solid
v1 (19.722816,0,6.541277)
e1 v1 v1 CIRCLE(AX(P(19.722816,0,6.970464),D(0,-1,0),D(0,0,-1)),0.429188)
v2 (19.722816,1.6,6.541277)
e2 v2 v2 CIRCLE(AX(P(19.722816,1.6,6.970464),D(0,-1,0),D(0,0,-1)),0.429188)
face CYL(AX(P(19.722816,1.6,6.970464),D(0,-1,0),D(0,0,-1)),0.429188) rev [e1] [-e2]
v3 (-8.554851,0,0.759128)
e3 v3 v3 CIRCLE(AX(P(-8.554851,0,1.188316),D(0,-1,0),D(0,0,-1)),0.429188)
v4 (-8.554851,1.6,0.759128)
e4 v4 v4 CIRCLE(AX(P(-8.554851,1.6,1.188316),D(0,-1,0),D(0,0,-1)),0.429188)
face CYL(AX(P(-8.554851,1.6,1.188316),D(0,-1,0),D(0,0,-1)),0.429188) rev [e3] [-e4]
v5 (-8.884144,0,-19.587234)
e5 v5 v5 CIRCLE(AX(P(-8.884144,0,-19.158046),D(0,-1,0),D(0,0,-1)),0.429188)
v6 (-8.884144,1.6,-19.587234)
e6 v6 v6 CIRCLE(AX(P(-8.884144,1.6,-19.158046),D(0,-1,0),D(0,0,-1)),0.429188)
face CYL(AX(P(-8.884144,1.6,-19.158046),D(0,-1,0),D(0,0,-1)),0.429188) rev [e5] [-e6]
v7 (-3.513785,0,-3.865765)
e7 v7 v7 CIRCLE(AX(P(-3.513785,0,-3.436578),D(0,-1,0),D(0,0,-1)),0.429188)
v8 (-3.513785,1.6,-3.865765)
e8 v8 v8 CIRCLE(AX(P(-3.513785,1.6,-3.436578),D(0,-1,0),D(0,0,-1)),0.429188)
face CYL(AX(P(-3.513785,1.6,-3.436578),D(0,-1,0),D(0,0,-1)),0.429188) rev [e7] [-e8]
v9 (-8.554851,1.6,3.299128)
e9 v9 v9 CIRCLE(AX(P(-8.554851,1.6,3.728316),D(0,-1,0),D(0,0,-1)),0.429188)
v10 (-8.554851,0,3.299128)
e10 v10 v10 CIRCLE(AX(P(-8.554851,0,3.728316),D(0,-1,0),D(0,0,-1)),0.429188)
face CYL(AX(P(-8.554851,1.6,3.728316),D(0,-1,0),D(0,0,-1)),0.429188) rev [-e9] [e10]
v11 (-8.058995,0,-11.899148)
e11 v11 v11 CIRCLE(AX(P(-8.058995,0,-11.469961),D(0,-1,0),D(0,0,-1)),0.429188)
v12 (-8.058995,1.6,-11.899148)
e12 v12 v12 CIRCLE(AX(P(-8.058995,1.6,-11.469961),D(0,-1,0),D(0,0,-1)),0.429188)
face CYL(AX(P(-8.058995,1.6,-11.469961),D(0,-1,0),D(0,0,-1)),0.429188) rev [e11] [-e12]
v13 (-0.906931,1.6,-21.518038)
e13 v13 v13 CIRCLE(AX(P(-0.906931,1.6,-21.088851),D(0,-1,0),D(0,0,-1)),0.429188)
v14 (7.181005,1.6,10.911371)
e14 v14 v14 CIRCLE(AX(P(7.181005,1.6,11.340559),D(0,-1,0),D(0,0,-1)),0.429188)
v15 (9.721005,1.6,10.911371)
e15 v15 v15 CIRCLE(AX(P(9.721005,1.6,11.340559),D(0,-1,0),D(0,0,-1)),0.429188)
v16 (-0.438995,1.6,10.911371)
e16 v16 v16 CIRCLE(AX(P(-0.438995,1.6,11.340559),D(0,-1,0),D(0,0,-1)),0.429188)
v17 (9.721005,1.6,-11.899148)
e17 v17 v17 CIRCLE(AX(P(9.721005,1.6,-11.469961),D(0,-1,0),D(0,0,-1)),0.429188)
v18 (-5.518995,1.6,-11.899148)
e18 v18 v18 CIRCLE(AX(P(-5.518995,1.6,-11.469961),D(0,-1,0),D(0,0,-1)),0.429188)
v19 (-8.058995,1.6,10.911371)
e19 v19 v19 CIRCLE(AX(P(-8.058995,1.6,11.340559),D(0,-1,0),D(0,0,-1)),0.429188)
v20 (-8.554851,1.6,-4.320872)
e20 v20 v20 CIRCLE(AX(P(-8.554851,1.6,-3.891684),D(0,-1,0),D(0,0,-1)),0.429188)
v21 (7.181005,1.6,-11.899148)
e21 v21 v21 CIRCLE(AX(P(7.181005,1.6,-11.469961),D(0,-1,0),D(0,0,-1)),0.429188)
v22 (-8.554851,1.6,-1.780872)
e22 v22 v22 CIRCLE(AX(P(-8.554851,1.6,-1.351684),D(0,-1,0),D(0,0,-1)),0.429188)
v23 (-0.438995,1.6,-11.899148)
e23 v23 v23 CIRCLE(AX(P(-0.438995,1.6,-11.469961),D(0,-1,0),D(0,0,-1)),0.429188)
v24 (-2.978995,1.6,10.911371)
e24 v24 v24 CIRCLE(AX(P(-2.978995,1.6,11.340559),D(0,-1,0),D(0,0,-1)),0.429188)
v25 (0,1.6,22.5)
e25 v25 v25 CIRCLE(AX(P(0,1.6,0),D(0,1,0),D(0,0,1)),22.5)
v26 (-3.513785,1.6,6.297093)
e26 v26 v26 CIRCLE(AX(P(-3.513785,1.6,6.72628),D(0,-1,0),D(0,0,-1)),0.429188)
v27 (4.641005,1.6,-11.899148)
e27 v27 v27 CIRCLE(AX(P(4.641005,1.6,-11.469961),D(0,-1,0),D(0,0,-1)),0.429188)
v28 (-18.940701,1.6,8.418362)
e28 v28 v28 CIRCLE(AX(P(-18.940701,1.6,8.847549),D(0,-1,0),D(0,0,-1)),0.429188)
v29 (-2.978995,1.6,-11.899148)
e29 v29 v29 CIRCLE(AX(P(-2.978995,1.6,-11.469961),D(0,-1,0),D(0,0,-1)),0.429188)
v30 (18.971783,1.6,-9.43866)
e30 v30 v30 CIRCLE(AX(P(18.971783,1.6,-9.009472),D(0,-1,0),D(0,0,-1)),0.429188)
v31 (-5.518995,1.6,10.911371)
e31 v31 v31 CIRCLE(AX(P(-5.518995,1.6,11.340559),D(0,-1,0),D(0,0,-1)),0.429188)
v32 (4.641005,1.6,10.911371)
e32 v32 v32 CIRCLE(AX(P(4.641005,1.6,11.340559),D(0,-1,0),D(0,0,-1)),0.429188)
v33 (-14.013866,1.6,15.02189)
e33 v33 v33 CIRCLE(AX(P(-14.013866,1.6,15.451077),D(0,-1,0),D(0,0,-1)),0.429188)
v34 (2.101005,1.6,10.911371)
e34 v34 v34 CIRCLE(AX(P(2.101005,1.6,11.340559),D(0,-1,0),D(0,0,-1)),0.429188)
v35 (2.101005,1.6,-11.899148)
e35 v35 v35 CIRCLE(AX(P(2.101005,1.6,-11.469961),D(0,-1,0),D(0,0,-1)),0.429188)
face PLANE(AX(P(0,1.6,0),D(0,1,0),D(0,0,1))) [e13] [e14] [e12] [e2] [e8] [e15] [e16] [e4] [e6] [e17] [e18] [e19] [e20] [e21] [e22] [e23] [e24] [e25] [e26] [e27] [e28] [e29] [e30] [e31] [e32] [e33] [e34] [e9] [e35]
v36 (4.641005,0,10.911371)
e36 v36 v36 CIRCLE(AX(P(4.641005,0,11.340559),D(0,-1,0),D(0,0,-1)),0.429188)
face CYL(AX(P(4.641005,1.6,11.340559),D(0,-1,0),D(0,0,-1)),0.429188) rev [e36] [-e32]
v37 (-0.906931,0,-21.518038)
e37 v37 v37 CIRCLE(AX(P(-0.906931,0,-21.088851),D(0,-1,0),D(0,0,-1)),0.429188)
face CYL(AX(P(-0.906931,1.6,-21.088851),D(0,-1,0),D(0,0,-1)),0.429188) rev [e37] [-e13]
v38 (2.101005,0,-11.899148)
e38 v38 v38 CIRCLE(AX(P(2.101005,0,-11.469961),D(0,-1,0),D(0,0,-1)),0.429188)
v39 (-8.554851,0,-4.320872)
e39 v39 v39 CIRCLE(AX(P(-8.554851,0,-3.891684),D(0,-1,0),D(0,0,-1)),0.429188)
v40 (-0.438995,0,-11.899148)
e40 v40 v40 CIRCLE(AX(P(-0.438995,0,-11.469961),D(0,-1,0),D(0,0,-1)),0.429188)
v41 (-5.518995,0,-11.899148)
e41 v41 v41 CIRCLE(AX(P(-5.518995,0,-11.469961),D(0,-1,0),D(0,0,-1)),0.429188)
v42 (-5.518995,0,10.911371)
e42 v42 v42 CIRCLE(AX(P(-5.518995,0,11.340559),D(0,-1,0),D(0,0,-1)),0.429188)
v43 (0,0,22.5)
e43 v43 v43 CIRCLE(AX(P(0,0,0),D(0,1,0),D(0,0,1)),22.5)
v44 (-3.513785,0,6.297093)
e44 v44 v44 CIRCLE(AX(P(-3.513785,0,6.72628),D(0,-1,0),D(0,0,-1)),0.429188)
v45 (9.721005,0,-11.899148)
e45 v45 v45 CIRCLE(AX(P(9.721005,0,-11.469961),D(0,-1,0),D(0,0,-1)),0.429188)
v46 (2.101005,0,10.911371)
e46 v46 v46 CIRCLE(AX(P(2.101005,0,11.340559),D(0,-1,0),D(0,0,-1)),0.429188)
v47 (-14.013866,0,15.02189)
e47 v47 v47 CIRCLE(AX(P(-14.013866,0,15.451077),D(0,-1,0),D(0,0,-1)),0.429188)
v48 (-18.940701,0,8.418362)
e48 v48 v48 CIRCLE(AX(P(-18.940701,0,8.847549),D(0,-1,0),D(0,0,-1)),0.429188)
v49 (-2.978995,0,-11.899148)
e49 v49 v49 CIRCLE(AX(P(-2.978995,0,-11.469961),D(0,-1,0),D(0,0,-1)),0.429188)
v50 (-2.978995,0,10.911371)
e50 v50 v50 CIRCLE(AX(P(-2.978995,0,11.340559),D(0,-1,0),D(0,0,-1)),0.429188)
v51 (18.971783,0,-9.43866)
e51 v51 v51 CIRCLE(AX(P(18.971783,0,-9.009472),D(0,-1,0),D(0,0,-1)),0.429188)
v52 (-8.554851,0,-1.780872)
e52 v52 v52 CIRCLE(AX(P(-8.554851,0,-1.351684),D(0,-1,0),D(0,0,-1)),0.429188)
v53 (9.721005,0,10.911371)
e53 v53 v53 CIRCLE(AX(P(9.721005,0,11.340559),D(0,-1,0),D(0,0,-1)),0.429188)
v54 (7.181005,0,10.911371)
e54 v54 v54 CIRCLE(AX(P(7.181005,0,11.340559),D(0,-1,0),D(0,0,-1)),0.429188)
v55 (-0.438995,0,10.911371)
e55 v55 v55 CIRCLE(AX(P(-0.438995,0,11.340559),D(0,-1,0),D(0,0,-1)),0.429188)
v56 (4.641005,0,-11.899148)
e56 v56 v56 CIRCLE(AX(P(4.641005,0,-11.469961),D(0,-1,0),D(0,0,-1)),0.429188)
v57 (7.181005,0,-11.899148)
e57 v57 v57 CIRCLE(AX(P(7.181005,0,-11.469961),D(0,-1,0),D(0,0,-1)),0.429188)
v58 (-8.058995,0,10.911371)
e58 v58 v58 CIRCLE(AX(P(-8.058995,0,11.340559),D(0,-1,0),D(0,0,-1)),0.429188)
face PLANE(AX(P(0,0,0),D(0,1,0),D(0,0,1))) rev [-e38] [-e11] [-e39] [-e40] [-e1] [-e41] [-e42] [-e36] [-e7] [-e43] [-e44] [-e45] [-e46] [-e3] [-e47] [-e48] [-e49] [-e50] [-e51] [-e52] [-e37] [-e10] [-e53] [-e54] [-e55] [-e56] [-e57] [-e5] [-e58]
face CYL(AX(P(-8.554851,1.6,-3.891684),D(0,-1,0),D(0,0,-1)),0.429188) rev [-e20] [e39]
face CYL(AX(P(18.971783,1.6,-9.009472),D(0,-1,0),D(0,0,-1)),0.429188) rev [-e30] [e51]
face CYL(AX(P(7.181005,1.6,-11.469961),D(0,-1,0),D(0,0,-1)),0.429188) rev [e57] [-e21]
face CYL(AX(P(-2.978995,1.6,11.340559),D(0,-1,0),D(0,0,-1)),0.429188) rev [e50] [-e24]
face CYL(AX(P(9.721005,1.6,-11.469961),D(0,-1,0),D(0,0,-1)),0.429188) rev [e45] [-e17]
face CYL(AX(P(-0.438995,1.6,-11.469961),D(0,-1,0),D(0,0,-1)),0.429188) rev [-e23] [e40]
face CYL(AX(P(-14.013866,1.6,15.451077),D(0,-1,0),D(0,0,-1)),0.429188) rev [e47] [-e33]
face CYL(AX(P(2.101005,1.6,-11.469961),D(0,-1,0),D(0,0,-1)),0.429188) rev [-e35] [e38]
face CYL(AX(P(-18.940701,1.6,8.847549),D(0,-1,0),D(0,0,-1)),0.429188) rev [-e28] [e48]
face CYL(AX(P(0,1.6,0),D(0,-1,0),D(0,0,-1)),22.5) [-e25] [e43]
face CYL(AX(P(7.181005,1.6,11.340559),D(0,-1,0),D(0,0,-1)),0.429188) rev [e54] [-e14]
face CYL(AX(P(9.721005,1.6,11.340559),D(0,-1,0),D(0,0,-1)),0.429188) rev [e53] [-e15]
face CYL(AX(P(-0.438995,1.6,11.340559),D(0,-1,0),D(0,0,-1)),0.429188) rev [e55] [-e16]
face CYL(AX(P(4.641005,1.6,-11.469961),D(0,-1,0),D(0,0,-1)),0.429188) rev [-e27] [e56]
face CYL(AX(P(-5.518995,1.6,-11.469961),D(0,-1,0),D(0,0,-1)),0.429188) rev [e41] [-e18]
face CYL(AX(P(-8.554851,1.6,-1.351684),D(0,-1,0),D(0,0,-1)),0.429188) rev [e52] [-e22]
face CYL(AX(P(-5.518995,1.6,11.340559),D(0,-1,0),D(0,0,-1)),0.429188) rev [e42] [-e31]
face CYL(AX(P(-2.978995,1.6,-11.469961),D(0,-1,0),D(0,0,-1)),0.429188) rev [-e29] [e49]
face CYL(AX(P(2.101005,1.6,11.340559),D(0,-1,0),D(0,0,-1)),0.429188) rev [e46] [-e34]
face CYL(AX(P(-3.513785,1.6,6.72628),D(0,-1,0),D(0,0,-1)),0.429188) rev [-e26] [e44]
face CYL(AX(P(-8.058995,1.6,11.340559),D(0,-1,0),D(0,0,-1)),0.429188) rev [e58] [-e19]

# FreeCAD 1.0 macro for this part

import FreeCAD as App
import Part
import Sketcher

doc = App.newDocument("Part")
body = doc.addObject("PartDesign::Body", "Body")

sketch1 = doc.addObject("Sketcher::SketchObject", "Sketch")
body.addObject(sketch1)
sketch1.AttachmentSupport = (doc.XZ_Plane, [""])
sketch1.MapMode = "FlatFace"
sketch1.addGeometry(Part.Circle(App.Vector(0, 0, 0), App.Vector(0, 0, 1), 22), False)
sketch1.addConstraint([
    Sketcher.Constraint("Coincident", 0, 3, -1, 1),
    Sketcher.Constraint("Diameter", 0, 45.0),
])
pad1 = doc.addObject("PartDesign::Pad", "Pad")
body.addObject(pad1)
pad1.Profile = sketch1
pad1.Length = 1.6
pad1.Reversed = True

sketch2 = doc.addObject("Sketcher::SketchObject", "Sketch001")
body.addObject(sketch2)
sketch2.AttachmentSupport = (doc.XZ_Plane, [""])
sketch2.MapMode = "FlatFace"
sketch2.addGeometry([
    Part.Circle(App.Vector(9.72, 11.34, 0), App.Vector(0, 0, 1), 0.43),
    Part.Circle(App.Vector(7.18, 11.34, 0), App.Vector(0, 0, 1), 0.43),
    Part.Circle(App.Vector(4.64, 11.34, 0), App.Vector(0, 0, 1), 0.43),
    Part.Circle(App.Vector(2.1, 11.34, 0), App.Vector(0, 0, 1), 0.43),
    Part.Circle(App.Vector(-0.44, 11.34, 0), App.Vector(0, 0, 1), 0.43),
    Part.Circle(App.Vector(-2.98, 11.34, 0), App.Vector(0, 0, 1), 0.43),
    Part.Circle(App.Vector(-5.52, 11.34, 0), App.Vector(0, 0, 1), 0.43),
    Part.Circle(App.Vector(-8.06, 11.34, 0), App.Vector(0, 0, 1), 0.43),
    Part.Circle(App.Vector(9.72, -11.47, 0), App.Vector(0, 0, 1), 0.43),
    Part.Circle(App.Vector(7.18, -11.47, 0), App.Vector(0, 0, 1), 0.43),
    Part.Circle(App.Vector(4.64, -11.47, 0), App.Vector(0, 0, 1), 0.43),
    Part.Circle(App.Vector(2.1, -11.47, 0), App.Vector(0, 0, 1), 0.43),
    Part.Circle(App.Vector(-0.44, -11.47, 0), App.Vector(0, 0, 1), 0.43),
    Part.Circle(App.Vector(-2.98, -11.47, 0), App.Vector(0, 0, 1), 0.43),
    Part.Circle(App.Vector(-5.52, -11.47, 0), App.Vector(0, 0, 1), 0.43),
    Part.Circle(App.Vector(-8.06, -11.47, 0), App.Vector(0, 0, 1), 0.43),
    Part.Circle(App.Vector(-8.55, 3.73, 0), App.Vector(0, 0, 1), 0.43),
    Part.Circle(App.Vector(-8.55, 1.19, 0), App.Vector(0, 0, 1), 0.43),
    Part.Circle(App.Vector(-8.55, -1.35, 0), App.Vector(0, 0, 1), 0.43),
    Part.Circle(App.Vector(-8.55, -3.89, 0), App.Vector(0, 0, 1), 0.43),
    Part.Circle(App.Vector(-3.51, 6.73, 0), App.Vector(0, 0, 1), 0.43),
    Part.Circle(App.Vector(-14.01, 15.45, 0), App.Vector(0, 0, 1), 0.43),
    Part.Circle(App.Vector(-18.94, 8.85, 0), App.Vector(0, 0, 1), 0.43),
    Part.Circle(App.Vector(-3.51, -3.44, 0), App.Vector(0, 0, 1), 0.43),
    Part.Circle(App.Vector(-8.88, -19.16, 0), App.Vector(0, 0, 1), 0.43),
    Part.Circle(App.Vector(-0.91, -21.09, 0), App.Vector(0, 0, 1), 0.43),
    Part.Circle(App.Vector(19.72, 6.97, 0), App.Vector(0, 0, 1), 0.43),
    Part.Circle(App.Vector(18.97, -9.01, 0), App.Vector(0, 0, 1), 0.43),
], False)
sketch2.addConstraint([
    Sketcher.Constraint("Equal", 0, 1),
    Sketcher.Constraint("Equal", 1, 2),
    Sketcher.Constraint("Equal", 2, 3),
    Sketcher.Constraint("Equal", 3, 4),
    Sketcher.Constraint("Equal", 4, 5),
    Sketcher.Constraint("Equal", 5, 6),
    Sketcher.Constraint("Equal", 6, 7),
    Sketcher.Constraint("Equal", 7, 8),
    Sketcher.Constraint("Equal", 8, 9),
    Sketcher.Constraint("Equal", 9, 10),
    Sketcher.Constraint("Equal", 10, 11),
    Sketcher.Constraint("Equal", 11, 12),
    Sketcher.Constraint("Equal", 12, 13),
    Sketcher.Constraint("Equal", 13, 14),
    Sketcher.Constraint("Equal", 14, 15),
    Sketcher.Constraint("Equal", 15, 16),
    Sketcher.Constraint("Equal", 16, 17),
    Sketcher.Constraint("Equal", 17, 18),
    Sketcher.Constraint("Equal", 18, 19),
    Sketcher.Constraint("Equal", 19, 20),
    Sketcher.Constraint("Equal", 20, 21),
    Sketcher.Constraint("Equal", 21, 22),
    Sketcher.Constraint("Equal", 22, 23),
    Sketcher.Constraint("Equal", 23, 24),
    Sketcher.Constraint("Equal", 24, 25),
    Sketcher.Constraint("Equal", 25, 26),
    Sketcher.Constraint("Equal", 26, 27),
    Sketcher.Constraint("Horizontal", 0, 3, 1, 3),
    Sketcher.Constraint("Horizontal", 1, 3, 2, 3),
    Sketcher.Constraint("Horizontal", 2, 3, 3, 3),
    Sketcher.Constraint("Horizontal", 3, 3, 4, 3),
    Sketcher.Constraint("Horizontal", 4, 3, 5, 3),
    Sketcher.Constraint("Horizontal", 5, 3, 6, 3),
    Sketcher.Constraint("Horizontal", 6, 3, 7, 3),
    Sketcher.Constraint("Horizontal", 8, 3, 9, 3),
    Sketcher.Constraint("Horizontal", 9, 3, 10, 3),
    Sketcher.Constraint("Horizontal", 10, 3, 11, 3),
    Sketcher.Constraint("Horizontal", 11, 3, 12, 3),
    Sketcher.Constraint("Horizontal", 12, 3, 13, 3),
    Sketcher.Constraint("Horizontal", 13, 3, 14, 3),
    Sketcher.Constraint("Horizontal", 14, 3, 15, 3),
    Sketcher.Constraint("Vertical", 0, 3, 8, 3),
    Sketcher.Constraint("Vertical", 1, 3, 9, 3),
    Sketcher.Constraint("Vertical", 2, 3, 10, 3),
    Sketcher.Constraint("Vertical", 3, 3, 11, 3),
    Sketcher.Constraint("Vertical", 4, 3, 12, 3),
    Sketcher.Constraint("Vertical", 5, 3, 13, 3),
    Sketcher.Constraint("Vertical", 6, 3, 14, 3),
    Sketcher.Constraint("Vertical", 7, 3, 15, 3),
    Sketcher.Constraint("Vertical", 16, 3, 17, 3),
    Sketcher.Constraint("Vertical", 17, 3, 18, 3),
    Sketcher.Constraint("Vertical", 18, 3, 19, 3),
    Sketcher.Constraint("Vertical", 20, 3, 23, 3),
    Sketcher.Constraint("DistanceX", 5, 3, 0, 3, 12.7),
    Sketcher.Constraint("DistanceX", 6, 3, 1, 3, 12.7),
    Sketcher.Constraint("DistanceX", 7, 3, 2, 3, 12.7),
    Sketcher.Constraint("DistanceX", 1, 3, 0, 3, 2.54),
    Sketcher.Constraint("DistanceX", 2, 3, 1, 3, 2.54),
    Sketcher.Constraint("DistanceX", 3, 3, 2, 3, 2.54),
    Sketcher.Constraint("DistanceX", 4, 3, 3, 3, 2.54),
    Sketcher.Constraint("DistanceY", 17, 3, 16, 3, 2.54),
    Sketcher.Constraint("DistanceY", 18, 3, 17, 3, 2.54),
    Sketcher.Constraint("DistanceY", 19, 3, 18, 3, 2.54),
    Sketcher.Constraint("Diameter", 0, 0.858375),
    Sketcher.Constraint("DistanceX", 22, 3, -1, 1, 18.940701),
    Sketcher.Constraint("DistanceY", -1, 1, 0, 3, 11.340559),
    Sketcher.Constraint("DistanceY", 8, 3, -1, 1, 11.469961),
    Sketcher.Constraint("DistanceX", 16, 3, -1, 1, 8.554851),
    Sketcher.Constraint("DistanceY", -1, 1, 20, 3, 6.72628),
    Sketcher.Constraint("DistanceY", -1, 1, 22, 3, 8.847549),
    Sketcher.Constraint("DistanceX", 25, 3, -1, 1, 0.906931),
    Sketcher.Constraint("DistanceY", 25, 3, -1, 1, 21.088851),
    Sketcher.Constraint("DistanceX", 20, 3, 5, 3, 0.534791),
    Sketcher.Constraint("DistanceX", 21, 3, 7, 3, 5.954871),
    Sketcher.Constraint("DistanceY", 7, 3, 21, 3, 4.110518),
    Sketcher.Constraint("DistanceY", 16, 3, 21, 3, 11.722762),
    Sketcher.Constraint("DistanceX", 24, 3, 15, 3, 0.82515),
    Sketcher.Constraint("DistanceX", 0, 3, 26, 3, 10.001811),
    Sketcher.Constraint("DistanceY", 8, 3, 27, 3, 2.460488),
    Sketcher.Constraint("DistanceX", -1, 1, 0, 3, 9.721005),
    Sketcher.Constraint("DistanceY", 23, 3, -1, 1, 3.436578),
    Sketcher.Constraint("DistanceY", 24, 3, -1, 1, 19.158046),
    Sketcher.Constraint("DistanceY", -1, 1, 26, 3, 6.970464),
    Sketcher.Constraint("DistanceX", -1, 1, 27, 3, 18.971783),
])
pocket1 = doc.addObject("PartDesign::Pocket", "Pocket")
body.addObject(pocket1)
pocket1.Profile = sketch2
pocket1.Type = "ThroughAll"

doc.recompute()
